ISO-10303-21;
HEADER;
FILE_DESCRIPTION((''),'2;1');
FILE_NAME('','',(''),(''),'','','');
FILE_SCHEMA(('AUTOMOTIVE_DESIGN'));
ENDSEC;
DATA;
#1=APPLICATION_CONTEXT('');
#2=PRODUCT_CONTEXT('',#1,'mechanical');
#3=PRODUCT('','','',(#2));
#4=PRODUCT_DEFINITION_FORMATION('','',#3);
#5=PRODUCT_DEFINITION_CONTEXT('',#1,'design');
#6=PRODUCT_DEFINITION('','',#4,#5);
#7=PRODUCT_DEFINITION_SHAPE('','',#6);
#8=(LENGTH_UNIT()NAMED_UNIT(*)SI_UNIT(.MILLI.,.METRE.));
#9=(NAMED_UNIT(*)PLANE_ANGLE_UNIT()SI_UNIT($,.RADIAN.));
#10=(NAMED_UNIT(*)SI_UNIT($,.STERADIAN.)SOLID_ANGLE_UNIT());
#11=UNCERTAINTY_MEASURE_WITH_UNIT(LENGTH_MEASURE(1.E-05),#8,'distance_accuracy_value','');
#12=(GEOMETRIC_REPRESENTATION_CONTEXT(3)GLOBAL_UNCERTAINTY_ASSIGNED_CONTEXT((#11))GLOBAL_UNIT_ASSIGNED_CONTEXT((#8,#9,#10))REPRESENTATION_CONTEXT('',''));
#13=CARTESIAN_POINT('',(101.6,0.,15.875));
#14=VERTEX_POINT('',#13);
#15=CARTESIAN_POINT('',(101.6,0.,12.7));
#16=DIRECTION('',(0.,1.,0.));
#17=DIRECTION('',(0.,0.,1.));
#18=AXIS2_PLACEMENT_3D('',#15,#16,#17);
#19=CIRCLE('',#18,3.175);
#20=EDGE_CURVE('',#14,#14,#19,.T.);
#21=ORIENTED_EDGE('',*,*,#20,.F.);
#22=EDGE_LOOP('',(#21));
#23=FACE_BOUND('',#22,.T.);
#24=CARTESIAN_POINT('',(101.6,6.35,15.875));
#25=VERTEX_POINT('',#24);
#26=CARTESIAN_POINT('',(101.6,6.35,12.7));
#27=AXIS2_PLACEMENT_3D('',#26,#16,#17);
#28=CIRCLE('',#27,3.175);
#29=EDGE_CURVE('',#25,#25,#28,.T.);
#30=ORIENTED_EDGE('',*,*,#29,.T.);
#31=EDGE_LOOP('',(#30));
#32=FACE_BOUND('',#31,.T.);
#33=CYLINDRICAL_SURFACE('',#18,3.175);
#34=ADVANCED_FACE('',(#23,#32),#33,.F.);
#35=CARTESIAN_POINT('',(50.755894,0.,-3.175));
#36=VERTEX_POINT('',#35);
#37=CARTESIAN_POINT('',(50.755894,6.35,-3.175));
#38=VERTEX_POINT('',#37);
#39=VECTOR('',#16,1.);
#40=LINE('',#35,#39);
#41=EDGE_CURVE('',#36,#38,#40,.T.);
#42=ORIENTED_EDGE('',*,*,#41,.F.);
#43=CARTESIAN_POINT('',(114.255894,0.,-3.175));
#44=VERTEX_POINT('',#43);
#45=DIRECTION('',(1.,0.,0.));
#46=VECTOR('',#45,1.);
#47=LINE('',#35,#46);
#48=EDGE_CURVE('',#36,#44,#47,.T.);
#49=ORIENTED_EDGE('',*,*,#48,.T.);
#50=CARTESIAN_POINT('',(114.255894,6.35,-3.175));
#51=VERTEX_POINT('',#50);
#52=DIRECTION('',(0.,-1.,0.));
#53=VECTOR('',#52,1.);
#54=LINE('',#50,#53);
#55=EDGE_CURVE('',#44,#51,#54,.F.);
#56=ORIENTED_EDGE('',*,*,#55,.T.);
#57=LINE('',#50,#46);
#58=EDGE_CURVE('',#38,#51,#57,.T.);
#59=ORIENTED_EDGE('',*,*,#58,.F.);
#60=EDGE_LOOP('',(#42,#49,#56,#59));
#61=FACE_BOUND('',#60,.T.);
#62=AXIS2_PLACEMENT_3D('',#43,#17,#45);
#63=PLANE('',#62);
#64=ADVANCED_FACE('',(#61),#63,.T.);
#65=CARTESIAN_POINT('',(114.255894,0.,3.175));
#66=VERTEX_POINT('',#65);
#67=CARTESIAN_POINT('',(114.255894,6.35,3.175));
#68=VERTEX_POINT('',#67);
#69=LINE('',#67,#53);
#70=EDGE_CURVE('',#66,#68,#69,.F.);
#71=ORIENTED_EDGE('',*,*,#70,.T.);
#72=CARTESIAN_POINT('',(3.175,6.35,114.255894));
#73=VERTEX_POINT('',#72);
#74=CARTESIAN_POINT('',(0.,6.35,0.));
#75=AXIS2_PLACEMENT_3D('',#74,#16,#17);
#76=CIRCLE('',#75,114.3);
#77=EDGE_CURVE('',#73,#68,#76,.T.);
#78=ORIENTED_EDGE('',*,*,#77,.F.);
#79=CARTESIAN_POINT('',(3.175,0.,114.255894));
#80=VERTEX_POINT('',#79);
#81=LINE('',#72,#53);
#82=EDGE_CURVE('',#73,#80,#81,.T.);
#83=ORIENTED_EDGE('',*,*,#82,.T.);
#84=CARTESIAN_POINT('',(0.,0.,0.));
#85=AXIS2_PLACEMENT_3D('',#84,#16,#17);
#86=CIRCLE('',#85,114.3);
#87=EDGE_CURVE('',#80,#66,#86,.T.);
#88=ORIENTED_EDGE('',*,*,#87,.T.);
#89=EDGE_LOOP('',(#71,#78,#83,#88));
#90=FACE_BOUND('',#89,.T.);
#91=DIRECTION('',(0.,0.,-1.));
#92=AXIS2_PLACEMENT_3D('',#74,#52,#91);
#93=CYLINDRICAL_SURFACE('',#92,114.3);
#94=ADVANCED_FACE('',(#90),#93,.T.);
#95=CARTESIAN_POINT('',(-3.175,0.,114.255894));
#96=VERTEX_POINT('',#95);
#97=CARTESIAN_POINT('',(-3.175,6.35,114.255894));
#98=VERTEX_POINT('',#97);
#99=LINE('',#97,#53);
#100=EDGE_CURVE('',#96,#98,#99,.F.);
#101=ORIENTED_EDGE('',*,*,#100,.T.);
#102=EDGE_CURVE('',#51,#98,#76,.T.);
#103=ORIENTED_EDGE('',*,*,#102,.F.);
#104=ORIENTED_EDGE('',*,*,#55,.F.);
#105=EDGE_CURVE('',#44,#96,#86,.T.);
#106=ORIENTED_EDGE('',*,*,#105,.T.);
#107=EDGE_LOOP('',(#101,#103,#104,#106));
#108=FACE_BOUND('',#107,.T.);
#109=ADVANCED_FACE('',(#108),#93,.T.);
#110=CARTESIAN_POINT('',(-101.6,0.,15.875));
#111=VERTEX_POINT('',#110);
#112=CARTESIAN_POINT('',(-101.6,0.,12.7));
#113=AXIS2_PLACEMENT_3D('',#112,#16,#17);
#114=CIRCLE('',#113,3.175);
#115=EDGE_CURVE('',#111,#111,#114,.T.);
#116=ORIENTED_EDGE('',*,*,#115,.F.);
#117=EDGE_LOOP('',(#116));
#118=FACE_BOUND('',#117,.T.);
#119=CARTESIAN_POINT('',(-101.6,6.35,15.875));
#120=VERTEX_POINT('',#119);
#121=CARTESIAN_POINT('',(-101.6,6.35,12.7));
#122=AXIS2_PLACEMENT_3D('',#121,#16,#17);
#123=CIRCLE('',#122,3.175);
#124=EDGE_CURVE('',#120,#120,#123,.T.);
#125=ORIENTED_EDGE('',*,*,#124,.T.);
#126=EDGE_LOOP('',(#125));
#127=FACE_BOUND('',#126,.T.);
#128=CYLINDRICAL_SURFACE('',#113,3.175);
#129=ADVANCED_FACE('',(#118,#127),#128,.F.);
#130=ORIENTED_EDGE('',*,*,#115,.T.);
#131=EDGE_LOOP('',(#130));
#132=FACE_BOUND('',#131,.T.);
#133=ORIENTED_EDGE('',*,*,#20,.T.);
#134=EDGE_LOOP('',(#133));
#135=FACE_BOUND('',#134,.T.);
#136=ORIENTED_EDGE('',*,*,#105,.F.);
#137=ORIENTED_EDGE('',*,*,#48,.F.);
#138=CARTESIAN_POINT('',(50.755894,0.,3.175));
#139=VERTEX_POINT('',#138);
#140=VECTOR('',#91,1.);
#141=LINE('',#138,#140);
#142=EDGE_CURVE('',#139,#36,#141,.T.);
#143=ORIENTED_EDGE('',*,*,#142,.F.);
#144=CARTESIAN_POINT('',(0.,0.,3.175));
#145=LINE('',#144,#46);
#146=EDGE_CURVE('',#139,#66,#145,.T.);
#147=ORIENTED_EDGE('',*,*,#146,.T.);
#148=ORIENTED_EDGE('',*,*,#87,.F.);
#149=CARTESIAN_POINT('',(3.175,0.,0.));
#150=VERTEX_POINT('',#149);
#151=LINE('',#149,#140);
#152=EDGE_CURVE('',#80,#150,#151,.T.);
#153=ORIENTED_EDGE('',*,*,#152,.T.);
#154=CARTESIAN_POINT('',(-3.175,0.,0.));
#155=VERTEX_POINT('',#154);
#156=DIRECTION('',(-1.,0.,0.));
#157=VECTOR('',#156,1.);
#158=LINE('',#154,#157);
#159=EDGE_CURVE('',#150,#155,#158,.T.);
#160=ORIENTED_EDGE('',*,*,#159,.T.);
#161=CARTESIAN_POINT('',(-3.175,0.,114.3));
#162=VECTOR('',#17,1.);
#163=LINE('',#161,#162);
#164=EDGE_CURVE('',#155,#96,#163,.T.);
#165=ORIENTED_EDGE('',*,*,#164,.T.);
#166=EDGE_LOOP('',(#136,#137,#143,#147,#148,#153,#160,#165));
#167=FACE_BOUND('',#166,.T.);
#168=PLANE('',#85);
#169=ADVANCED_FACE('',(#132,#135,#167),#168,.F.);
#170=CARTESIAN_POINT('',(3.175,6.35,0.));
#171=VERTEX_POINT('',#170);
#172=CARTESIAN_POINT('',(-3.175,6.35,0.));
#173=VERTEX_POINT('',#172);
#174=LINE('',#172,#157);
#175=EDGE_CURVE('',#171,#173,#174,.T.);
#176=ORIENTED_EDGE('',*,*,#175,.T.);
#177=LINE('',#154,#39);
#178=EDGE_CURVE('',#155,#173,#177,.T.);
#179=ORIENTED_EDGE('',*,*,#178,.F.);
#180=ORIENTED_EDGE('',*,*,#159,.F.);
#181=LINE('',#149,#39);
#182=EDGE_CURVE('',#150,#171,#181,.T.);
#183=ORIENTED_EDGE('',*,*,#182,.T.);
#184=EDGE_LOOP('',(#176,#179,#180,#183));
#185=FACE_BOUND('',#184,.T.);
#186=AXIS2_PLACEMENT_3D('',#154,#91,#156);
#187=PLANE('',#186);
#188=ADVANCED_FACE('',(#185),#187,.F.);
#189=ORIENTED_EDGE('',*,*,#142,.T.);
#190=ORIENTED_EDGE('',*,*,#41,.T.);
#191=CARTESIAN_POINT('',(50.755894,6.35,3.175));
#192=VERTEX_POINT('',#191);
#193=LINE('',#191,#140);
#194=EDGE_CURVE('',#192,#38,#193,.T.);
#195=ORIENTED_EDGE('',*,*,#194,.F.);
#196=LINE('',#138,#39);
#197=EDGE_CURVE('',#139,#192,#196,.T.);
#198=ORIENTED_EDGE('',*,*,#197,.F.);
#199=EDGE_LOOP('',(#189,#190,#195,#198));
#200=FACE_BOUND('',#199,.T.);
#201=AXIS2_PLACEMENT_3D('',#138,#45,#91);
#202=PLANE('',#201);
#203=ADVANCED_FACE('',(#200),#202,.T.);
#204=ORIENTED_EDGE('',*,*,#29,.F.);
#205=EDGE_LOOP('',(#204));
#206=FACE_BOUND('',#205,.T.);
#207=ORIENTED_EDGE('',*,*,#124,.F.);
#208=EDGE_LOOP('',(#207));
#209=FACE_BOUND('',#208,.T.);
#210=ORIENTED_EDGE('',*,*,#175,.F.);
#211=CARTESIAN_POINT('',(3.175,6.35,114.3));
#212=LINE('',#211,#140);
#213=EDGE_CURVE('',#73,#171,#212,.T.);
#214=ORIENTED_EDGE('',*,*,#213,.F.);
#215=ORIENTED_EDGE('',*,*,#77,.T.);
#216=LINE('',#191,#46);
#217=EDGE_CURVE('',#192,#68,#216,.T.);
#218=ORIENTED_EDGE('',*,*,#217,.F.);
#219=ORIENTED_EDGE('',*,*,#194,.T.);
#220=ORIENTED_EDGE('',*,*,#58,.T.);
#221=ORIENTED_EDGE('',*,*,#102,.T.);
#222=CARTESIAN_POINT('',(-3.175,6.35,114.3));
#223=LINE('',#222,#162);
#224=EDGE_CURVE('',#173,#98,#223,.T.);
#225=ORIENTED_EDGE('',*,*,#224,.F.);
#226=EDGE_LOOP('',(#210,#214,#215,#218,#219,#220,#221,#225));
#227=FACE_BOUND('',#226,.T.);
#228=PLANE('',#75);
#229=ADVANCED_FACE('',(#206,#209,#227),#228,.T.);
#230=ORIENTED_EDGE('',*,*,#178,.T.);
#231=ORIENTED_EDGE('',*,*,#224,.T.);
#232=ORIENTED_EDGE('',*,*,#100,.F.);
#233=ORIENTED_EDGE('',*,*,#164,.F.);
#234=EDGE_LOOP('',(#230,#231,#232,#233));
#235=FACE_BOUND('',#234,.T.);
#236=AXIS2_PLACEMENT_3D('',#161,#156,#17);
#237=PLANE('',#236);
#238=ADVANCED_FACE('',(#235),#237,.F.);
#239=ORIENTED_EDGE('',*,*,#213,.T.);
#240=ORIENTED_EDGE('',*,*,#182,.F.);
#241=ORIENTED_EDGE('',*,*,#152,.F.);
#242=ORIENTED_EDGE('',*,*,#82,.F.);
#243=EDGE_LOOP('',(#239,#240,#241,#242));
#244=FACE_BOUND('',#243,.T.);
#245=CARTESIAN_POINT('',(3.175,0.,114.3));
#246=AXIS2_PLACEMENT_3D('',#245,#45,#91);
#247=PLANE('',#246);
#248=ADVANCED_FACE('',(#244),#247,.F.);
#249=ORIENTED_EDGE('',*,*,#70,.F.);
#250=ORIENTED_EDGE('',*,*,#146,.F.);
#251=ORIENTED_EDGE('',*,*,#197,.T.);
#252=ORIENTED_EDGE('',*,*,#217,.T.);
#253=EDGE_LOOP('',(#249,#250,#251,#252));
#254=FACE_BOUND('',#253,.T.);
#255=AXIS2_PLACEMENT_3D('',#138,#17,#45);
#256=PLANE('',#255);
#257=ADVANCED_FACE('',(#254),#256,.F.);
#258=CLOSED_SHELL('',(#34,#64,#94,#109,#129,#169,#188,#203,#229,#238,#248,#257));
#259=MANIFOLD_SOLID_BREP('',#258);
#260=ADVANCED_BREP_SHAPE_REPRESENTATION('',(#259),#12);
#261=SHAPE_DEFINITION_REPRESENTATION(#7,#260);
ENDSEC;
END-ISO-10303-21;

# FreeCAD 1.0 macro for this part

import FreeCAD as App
import Part
import Sketcher
from FreeCAD import Vector
Q = App.Units.Quantity


def add_polygon(sketch, points):
    """Adds a closed chain of lines whose ends are joined by coincident constraints."""
    first, n = sketch.GeometryCount, len(points)
    for a, b in zip(points, points[1:] + points[:1]):
        sketch.addGeometry(Part.LineSegment(App.Vector(*a, 0), App.Vector(*b, 0)), False)
    for i in range(n):
        sketch.addConstraint(Sketcher.Constraint("Coincident", first + i, 2, first + (i + 1) % n, 1))

doc = App.newDocument("Part")
body = doc.addObject("PartDesign::Body", "Body")

# Sketch on XZ plane
sketch1 = body.newObject("Sketcher::SketchObject", "Sketch")
sketch1.AttachmentSupport = (doc.getObject("XZ_Plane"), [""])
sketch1.MapMode = "FlatFace"
sketch1.addGeometry(Part.Circle(Vector(0, 0, 0), Vector(0, 0, 1), 114), False)
sketch1.addConstraint([
    Sketcher.Constraint("Coincident", 0, 3, -1, 1),
    Sketcher.Constraint("Diameter", 0, Q("9 in")),
])
pad1 = body.newObject("PartDesign::Pad", "Pad")
pad1.Profile = sketch1
pad1.Length = Q("0.25 in")
pad1.Reversed = True

# Sketch on XZ plane
sketch2 = body.newObject("Sketcher::SketchObject", "Sketch001")
sketch2.AttachmentSupport = (doc.getObject("XZ_Plane"), [""])
sketch2.MapMode = "FlatFace"
sketch2.AttachmentOffset = App.Placement(Vector(0, 0, -0.25 * 25.4), App.Rotation())
add_polygon(sketch2, [(-3, 0), (-3, 114), (3, 114), (3, 0)])  # lines 0-3
sketch2.addConstraint([
    Sketcher.Constraint("Vertical", 0),
    Sketcher.Constraint("Horizontal", 1),
    Sketcher.Constraint("Vertical", 2),
    Sketcher.Constraint("Horizontal", 3),
    Sketcher.Constraint("Symmetric", 2, 2, 3, 2, -1, 1),
    Sketcher.Constraint("DistanceY", 0, 1, 0, 2, Q("4.5 in")),
    Sketcher.Constraint("DistanceX", 1, 1, 1, 2, Q("0.25 in")),
])
pocket1 = body.newObject("PartDesign::Pocket", "Pocket")
pocket1.Profile = sketch2
pocket1.Length = Q("0.25 in")
pocket1.Reversed = True

# Sketch on XZ plane
sketch3 = body.newObject("Sketcher::SketchObject", "Sketch002")
sketch3.AttachmentSupport = (doc.getObject("XZ_Plane"), [""])
sketch3.MapMode = "FlatFace"
sketch3.AttachmentOffset = App.Placement(Vector(0, 0, -0.25 * 25.4), App.Rotation())
add_polygon(sketch3, [(121, -3), (51, -3), (51, 3), (121, 3)])  # lines 0-3
sketch3.addConstraint([
    Sketcher.Constraint("Horizontal", 0),
    Sketcher.Constraint("Vertical", 1),
    Sketcher.Constraint("Horizontal", 2),
    Sketcher.Constraint("Vertical", 3),
    Sketcher.Constraint("DistanceX", 0, 2, 0, 1, Q("2.75 in")),
    Sketcher.Constraint("DistanceY", 1, 1, 1, 2, Q("0.25 in")),
    Sketcher.Constraint("DistanceY", 0, 2, -1, 1, Q("0.125 in")),
    Sketcher.Constraint("DistanceX", -1, 1, 0, 2, Q("50.755894 mm")),
])
pocket2 = body.newObject("PartDesign::Pocket", "Pocket001")
pocket2.Profile = sketch3
pocket2.Type = "ThroughAll"
pocket2.Reversed = True

# Sketch on XZ plane
sketch4 = body.newObject("Sketcher::SketchObject", "Sketch003")
sketch4.AttachmentSupport = (doc.getObject("XZ_Plane"), [""])
sketch4.MapMode = "FlatFace"
sketch4.AttachmentOffset = App.Placement(Vector(0, 0, -0.25 * 25.4), App.Rotation())
sketch4.addGeometry([
    Part.Circle(Vector(101.6, 12.7, 0), Vector(0, 0, 1), 3.2),
    Part.Circle(Vector(-101.6, 12.7, 0), Vector(0, 0, 1), 3.2),
], False)
sketch4.addConstraint([
    Sketcher.Constraint("Equal", 0, 1),
    Sketcher.Constraint("Symmetric", 0, 3, 1, 3, -2),
    Sketcher.Constraint("Diameter", 0, Q("0.25 in")),
    Sketcher.Constraint("DistanceX", -1, 1, 0, 3, Q("4 in")),
    Sketcher.Constraint("DistanceY", -1, 1, 0, 3, Q("0.5 in")),
])
pocket3 = body.newObject("PartDesign::Pocket", "Pocket002")
pocket3.Profile = sketch4
pocket3.Type = "ThroughAll"
pocket3.Reversed = True

doc.recompute()
